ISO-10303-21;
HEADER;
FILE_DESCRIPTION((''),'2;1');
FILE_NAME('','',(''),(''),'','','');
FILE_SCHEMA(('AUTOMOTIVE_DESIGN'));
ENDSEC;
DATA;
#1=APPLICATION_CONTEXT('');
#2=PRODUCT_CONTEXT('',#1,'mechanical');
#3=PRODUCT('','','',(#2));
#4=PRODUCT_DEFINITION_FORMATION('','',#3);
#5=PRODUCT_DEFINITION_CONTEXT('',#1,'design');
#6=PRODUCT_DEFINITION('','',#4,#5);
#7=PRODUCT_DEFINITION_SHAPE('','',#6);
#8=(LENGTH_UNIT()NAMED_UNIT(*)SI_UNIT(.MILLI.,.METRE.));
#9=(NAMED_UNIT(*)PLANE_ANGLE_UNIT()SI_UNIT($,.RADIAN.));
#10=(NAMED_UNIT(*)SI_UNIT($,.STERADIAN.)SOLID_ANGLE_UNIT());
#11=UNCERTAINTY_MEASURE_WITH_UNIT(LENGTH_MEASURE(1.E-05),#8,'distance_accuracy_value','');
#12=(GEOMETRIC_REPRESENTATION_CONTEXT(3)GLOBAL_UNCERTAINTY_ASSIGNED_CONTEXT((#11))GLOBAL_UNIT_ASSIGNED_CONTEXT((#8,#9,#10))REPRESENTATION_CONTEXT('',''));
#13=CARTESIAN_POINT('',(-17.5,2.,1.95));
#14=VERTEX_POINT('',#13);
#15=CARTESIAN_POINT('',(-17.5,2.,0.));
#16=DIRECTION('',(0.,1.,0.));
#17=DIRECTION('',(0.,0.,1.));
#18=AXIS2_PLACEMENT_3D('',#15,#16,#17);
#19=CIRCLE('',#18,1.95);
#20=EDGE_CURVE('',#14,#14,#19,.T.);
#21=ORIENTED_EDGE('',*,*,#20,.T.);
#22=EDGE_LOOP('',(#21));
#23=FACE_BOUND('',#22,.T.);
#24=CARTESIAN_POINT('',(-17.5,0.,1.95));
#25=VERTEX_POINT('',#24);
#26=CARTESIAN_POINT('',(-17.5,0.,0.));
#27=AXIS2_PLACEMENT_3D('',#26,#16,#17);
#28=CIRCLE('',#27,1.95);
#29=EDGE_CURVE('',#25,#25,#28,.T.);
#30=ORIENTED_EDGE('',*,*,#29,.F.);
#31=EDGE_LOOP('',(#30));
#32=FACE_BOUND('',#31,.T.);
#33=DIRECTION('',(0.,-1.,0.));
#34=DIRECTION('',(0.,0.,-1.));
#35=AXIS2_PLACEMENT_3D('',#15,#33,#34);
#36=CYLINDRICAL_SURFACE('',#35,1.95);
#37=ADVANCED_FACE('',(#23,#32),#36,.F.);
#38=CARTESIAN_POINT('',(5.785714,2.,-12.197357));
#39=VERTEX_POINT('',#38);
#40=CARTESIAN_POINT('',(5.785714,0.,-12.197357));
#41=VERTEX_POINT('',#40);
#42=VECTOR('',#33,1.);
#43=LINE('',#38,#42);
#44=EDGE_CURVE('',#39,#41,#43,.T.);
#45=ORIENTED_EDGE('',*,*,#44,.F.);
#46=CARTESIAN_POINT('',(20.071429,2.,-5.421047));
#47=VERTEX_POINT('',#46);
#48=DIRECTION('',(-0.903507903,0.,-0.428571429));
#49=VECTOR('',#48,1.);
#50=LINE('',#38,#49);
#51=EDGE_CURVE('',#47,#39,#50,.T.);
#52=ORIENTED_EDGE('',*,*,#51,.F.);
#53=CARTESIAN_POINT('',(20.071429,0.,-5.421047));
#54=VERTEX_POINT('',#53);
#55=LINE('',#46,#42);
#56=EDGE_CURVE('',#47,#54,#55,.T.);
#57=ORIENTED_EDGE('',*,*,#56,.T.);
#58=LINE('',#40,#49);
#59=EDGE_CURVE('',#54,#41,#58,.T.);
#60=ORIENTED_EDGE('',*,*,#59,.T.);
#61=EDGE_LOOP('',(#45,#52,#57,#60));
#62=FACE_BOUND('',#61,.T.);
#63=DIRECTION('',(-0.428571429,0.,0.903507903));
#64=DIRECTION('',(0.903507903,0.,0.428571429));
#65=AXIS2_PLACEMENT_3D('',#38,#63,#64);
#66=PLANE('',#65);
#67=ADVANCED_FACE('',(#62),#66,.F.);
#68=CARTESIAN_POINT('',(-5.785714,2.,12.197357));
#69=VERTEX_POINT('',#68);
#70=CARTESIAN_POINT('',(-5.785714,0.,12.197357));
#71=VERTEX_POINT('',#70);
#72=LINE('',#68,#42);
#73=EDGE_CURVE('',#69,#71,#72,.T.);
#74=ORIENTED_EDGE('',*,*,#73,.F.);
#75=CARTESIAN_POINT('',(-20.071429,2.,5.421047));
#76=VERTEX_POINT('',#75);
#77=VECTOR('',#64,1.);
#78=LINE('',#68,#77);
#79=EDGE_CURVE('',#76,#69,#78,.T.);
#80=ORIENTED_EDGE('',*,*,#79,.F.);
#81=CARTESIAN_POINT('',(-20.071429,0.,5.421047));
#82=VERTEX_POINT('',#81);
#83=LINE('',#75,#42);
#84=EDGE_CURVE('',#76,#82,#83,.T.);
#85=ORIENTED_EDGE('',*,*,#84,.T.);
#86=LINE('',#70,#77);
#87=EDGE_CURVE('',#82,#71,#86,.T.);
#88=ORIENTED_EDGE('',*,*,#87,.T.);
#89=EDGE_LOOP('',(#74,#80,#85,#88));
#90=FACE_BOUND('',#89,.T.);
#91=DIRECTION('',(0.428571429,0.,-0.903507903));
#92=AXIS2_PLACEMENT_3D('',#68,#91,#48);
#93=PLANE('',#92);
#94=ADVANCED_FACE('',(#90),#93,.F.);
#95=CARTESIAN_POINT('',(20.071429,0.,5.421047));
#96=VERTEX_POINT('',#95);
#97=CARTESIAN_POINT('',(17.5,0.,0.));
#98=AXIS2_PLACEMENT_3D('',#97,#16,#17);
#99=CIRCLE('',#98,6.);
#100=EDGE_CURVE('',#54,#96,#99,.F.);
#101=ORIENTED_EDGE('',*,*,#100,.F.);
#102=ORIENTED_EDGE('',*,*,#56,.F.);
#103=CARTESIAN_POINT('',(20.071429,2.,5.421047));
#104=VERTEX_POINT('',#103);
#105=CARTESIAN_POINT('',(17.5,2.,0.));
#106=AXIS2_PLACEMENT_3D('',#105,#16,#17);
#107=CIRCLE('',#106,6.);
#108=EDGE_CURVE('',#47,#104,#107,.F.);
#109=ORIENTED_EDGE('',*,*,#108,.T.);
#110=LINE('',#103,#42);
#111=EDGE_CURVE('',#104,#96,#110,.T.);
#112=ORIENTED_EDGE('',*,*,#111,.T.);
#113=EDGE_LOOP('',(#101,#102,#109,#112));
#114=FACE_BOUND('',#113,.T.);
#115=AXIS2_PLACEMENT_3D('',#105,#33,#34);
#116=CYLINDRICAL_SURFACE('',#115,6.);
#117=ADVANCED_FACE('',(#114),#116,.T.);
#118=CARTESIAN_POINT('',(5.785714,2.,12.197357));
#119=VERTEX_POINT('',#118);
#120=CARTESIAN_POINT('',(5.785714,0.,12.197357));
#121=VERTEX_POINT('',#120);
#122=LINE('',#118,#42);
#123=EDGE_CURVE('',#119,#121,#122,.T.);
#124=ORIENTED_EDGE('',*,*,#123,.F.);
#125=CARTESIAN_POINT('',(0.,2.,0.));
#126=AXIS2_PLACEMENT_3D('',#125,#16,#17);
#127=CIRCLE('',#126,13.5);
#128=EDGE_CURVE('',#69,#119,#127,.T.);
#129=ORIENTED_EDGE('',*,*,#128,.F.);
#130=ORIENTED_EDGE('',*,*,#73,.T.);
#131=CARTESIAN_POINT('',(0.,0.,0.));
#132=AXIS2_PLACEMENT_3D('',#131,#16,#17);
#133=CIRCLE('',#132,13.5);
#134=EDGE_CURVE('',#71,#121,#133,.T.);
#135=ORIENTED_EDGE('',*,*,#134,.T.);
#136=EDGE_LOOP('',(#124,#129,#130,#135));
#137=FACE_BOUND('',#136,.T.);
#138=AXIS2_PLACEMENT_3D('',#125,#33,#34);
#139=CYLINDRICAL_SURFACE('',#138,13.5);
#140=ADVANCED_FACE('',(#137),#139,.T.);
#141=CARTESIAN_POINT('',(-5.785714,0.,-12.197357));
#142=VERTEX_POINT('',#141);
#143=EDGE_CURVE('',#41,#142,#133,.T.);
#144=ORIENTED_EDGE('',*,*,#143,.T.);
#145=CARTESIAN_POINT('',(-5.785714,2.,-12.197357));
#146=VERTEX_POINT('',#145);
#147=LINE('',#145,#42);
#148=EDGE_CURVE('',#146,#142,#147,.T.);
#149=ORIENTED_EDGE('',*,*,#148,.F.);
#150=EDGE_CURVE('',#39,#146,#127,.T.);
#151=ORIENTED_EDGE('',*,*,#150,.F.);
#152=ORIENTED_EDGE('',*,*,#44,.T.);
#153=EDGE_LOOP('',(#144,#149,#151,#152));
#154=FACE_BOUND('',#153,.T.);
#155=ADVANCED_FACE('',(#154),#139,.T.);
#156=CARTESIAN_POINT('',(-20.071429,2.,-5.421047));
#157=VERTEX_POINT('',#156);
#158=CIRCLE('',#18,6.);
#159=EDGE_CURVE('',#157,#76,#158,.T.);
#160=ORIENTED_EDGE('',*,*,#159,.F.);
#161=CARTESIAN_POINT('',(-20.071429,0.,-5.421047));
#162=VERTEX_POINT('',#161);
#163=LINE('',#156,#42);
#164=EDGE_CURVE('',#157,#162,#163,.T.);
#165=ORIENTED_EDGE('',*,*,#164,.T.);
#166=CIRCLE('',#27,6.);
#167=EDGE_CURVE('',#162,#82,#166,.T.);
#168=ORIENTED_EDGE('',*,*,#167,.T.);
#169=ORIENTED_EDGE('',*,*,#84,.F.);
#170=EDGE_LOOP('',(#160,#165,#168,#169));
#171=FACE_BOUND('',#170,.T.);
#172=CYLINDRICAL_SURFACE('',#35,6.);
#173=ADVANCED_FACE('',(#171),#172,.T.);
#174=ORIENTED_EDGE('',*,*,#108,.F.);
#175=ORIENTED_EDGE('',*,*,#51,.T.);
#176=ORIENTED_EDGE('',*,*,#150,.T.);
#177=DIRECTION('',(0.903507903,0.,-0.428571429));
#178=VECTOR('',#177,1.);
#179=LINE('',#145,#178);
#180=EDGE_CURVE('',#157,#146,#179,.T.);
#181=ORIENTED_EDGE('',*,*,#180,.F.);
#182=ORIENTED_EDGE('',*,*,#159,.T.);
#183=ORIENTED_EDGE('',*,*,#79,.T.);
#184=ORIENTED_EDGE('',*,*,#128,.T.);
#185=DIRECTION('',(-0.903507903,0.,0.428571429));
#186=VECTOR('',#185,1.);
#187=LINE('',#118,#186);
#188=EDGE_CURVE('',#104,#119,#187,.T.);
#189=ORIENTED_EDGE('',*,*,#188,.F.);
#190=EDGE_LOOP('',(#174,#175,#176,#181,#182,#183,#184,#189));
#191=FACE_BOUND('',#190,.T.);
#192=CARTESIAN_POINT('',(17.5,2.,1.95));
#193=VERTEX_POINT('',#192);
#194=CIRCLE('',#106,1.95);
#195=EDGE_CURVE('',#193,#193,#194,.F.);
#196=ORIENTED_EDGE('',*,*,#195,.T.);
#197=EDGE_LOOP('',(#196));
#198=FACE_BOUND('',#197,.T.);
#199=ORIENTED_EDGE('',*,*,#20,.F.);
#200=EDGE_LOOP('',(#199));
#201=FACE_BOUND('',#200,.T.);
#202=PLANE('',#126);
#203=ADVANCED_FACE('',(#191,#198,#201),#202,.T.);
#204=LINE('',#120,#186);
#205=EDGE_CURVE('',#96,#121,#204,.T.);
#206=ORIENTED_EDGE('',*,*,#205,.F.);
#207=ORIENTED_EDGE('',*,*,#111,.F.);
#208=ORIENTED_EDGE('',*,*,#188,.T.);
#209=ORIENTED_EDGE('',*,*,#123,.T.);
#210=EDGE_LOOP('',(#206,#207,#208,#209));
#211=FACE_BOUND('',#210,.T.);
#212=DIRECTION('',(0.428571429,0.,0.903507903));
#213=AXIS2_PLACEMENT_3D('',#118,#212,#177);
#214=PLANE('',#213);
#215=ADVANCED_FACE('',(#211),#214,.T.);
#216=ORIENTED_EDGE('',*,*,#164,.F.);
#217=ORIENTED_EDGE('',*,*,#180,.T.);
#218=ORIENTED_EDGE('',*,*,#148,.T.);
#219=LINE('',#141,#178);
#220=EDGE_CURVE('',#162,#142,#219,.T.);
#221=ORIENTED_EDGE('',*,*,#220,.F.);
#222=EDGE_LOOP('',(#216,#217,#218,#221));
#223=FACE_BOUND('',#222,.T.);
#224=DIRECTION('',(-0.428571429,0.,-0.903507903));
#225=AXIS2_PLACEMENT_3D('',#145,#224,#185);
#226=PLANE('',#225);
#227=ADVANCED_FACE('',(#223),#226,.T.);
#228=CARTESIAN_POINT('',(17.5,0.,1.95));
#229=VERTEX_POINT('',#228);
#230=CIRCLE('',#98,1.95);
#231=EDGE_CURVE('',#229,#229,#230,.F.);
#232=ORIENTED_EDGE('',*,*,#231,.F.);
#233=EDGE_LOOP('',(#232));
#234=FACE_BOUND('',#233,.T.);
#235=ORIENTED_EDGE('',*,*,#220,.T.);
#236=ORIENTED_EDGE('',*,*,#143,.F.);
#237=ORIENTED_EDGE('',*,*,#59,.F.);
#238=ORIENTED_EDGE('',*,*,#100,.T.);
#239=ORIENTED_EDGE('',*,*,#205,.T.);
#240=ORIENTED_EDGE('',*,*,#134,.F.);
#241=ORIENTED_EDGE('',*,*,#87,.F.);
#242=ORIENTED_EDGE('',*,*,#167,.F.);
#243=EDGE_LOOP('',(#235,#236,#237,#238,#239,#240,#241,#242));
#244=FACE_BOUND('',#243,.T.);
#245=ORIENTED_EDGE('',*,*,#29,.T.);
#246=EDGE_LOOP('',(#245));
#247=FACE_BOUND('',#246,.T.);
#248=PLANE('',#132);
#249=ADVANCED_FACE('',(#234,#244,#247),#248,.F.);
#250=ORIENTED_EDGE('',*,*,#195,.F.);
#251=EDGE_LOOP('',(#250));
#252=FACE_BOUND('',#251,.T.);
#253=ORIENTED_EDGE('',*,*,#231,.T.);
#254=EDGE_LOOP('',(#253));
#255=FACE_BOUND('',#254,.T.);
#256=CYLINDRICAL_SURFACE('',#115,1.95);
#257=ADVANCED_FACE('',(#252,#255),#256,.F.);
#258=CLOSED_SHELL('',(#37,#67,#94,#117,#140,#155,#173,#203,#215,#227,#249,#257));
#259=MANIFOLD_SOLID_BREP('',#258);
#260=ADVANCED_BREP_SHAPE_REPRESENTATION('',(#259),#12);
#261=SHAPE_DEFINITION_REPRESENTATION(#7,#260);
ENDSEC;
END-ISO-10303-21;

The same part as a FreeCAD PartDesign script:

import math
import FreeCAD as App
import Part
import Sketcher
from FreeCAD import Vector

doc = App.newDocument("Part")
body = doc.addObject("PartDesign::Body", "Body")

# Sketch on XZ plane
sketch1 = body.newObject("Sketcher::SketchObject", "Sketch")
sketch1.AttachmentSupport = (doc.getObject("XZ_Plane"), [""])
sketch1.MapMode = "FlatFace"
sketch1.addGeometry([
    Part.LineSegment(Vector(-5.8, -12.2, 0), Vector(-20.1, -5.4, 0)),  # 0
    Part.ArcOfCircle(Part.Circle(Vector(-17.5, 0, 0), Vector(0, 0, 1), 6), math.radians(115), math.radians(245)),  # 1
    Part.LineSegment(Vector(-20.1, 5.4, 0), Vector(-5.8, 12.2, 0)),  # 2
    Part.ArcOfCircle(Part.Circle(Vector(0, 0, 0), Vector(0, 0, 1), 13.5), math.radians(65), math.radians(115)),  # 3
    Part.LineSegment(Vector(5.8, 12.2, 0), Vector(20.1, 5.4, 0)),  # 4
    Part.ArcOfCircle(Part.Circle(Vector(17.5, 0, 0), Vector(0, 0, 1), 6), math.radians(-65), math.radians(65)),  # 5
    Part.LineSegment(Vector(20.1, -5.4, 0), Vector(5.8, -12.2, 0)),  # 6
    Part.ArcOfCircle(Part.Circle(Vector(0, 0, 0), Vector(0, 0, 1), 13.5), math.radians(-115), math.radians(-65)),  # 7
    Part.Circle(Vector(-17.5, 0, 0), Vector(0, 0, 1), 1.9),  # 8
    Part.Circle(Vector(17.5, 0, 0), Vector(0, 0, 1), 1.9),  # 9
], False)
sketch1.addConstraint([
    Sketcher.Constraint("Tangent", 0, 2, 1, 2),
    Sketcher.Constraint("Tangent", 1, 1, 2, 1),
    Sketcher.Constraint("Tangent", 2, 2, 3, 2),
    Sketcher.Constraint("Tangent", 3, 1, 4, 1),
    Sketcher.Constraint("Tangent", 4, 2, 5, 2),
    Sketcher.Constraint("Tangent", 5, 1, 6, 1),
    Sketcher.Constraint("Tangent", 6, 2, 7, 2),
    Sketcher.Constraint("Tangent", 7, 1, 0, 1),
    Sketcher.Constraint("Coincident", 3, 3, -1, 1),
    Sketcher.Constraint("Coincident", 7, 3, -1, 1),
    Sketcher.Constraint("Coincident", 8, 3, 1, 3),
    Sketcher.Constraint("Coincident", 9, 3, 5, 3),
    Sketcher.Constraint("Equal", 1, 5),
    Sketcher.Constraint("Equal", 3, 7),
    Sketcher.Constraint("Equal", 8, 9),
    Sketcher.Constraint("Symmetric", 1, 3, 5, 3, -1, 1),
    Sketcher.Constraint("PointOnObject", 1, 3, -1),
    Sketcher.Constraint("Radius", 1, 6.0),
    Sketcher.Constraint("Diameter", 8, 3.9),
    Sketcher.Constraint("Radius", 3, 13.5),
    Sketcher.Constraint("DistanceX", 1, 3, 5, 3, 35.0),
])
pad1 = body.newObject("PartDesign::Pad", "Pad")
pad1.Profile = sketch1
pad1.Length = 2
pad1.Reversed = True

doc.recompute()
